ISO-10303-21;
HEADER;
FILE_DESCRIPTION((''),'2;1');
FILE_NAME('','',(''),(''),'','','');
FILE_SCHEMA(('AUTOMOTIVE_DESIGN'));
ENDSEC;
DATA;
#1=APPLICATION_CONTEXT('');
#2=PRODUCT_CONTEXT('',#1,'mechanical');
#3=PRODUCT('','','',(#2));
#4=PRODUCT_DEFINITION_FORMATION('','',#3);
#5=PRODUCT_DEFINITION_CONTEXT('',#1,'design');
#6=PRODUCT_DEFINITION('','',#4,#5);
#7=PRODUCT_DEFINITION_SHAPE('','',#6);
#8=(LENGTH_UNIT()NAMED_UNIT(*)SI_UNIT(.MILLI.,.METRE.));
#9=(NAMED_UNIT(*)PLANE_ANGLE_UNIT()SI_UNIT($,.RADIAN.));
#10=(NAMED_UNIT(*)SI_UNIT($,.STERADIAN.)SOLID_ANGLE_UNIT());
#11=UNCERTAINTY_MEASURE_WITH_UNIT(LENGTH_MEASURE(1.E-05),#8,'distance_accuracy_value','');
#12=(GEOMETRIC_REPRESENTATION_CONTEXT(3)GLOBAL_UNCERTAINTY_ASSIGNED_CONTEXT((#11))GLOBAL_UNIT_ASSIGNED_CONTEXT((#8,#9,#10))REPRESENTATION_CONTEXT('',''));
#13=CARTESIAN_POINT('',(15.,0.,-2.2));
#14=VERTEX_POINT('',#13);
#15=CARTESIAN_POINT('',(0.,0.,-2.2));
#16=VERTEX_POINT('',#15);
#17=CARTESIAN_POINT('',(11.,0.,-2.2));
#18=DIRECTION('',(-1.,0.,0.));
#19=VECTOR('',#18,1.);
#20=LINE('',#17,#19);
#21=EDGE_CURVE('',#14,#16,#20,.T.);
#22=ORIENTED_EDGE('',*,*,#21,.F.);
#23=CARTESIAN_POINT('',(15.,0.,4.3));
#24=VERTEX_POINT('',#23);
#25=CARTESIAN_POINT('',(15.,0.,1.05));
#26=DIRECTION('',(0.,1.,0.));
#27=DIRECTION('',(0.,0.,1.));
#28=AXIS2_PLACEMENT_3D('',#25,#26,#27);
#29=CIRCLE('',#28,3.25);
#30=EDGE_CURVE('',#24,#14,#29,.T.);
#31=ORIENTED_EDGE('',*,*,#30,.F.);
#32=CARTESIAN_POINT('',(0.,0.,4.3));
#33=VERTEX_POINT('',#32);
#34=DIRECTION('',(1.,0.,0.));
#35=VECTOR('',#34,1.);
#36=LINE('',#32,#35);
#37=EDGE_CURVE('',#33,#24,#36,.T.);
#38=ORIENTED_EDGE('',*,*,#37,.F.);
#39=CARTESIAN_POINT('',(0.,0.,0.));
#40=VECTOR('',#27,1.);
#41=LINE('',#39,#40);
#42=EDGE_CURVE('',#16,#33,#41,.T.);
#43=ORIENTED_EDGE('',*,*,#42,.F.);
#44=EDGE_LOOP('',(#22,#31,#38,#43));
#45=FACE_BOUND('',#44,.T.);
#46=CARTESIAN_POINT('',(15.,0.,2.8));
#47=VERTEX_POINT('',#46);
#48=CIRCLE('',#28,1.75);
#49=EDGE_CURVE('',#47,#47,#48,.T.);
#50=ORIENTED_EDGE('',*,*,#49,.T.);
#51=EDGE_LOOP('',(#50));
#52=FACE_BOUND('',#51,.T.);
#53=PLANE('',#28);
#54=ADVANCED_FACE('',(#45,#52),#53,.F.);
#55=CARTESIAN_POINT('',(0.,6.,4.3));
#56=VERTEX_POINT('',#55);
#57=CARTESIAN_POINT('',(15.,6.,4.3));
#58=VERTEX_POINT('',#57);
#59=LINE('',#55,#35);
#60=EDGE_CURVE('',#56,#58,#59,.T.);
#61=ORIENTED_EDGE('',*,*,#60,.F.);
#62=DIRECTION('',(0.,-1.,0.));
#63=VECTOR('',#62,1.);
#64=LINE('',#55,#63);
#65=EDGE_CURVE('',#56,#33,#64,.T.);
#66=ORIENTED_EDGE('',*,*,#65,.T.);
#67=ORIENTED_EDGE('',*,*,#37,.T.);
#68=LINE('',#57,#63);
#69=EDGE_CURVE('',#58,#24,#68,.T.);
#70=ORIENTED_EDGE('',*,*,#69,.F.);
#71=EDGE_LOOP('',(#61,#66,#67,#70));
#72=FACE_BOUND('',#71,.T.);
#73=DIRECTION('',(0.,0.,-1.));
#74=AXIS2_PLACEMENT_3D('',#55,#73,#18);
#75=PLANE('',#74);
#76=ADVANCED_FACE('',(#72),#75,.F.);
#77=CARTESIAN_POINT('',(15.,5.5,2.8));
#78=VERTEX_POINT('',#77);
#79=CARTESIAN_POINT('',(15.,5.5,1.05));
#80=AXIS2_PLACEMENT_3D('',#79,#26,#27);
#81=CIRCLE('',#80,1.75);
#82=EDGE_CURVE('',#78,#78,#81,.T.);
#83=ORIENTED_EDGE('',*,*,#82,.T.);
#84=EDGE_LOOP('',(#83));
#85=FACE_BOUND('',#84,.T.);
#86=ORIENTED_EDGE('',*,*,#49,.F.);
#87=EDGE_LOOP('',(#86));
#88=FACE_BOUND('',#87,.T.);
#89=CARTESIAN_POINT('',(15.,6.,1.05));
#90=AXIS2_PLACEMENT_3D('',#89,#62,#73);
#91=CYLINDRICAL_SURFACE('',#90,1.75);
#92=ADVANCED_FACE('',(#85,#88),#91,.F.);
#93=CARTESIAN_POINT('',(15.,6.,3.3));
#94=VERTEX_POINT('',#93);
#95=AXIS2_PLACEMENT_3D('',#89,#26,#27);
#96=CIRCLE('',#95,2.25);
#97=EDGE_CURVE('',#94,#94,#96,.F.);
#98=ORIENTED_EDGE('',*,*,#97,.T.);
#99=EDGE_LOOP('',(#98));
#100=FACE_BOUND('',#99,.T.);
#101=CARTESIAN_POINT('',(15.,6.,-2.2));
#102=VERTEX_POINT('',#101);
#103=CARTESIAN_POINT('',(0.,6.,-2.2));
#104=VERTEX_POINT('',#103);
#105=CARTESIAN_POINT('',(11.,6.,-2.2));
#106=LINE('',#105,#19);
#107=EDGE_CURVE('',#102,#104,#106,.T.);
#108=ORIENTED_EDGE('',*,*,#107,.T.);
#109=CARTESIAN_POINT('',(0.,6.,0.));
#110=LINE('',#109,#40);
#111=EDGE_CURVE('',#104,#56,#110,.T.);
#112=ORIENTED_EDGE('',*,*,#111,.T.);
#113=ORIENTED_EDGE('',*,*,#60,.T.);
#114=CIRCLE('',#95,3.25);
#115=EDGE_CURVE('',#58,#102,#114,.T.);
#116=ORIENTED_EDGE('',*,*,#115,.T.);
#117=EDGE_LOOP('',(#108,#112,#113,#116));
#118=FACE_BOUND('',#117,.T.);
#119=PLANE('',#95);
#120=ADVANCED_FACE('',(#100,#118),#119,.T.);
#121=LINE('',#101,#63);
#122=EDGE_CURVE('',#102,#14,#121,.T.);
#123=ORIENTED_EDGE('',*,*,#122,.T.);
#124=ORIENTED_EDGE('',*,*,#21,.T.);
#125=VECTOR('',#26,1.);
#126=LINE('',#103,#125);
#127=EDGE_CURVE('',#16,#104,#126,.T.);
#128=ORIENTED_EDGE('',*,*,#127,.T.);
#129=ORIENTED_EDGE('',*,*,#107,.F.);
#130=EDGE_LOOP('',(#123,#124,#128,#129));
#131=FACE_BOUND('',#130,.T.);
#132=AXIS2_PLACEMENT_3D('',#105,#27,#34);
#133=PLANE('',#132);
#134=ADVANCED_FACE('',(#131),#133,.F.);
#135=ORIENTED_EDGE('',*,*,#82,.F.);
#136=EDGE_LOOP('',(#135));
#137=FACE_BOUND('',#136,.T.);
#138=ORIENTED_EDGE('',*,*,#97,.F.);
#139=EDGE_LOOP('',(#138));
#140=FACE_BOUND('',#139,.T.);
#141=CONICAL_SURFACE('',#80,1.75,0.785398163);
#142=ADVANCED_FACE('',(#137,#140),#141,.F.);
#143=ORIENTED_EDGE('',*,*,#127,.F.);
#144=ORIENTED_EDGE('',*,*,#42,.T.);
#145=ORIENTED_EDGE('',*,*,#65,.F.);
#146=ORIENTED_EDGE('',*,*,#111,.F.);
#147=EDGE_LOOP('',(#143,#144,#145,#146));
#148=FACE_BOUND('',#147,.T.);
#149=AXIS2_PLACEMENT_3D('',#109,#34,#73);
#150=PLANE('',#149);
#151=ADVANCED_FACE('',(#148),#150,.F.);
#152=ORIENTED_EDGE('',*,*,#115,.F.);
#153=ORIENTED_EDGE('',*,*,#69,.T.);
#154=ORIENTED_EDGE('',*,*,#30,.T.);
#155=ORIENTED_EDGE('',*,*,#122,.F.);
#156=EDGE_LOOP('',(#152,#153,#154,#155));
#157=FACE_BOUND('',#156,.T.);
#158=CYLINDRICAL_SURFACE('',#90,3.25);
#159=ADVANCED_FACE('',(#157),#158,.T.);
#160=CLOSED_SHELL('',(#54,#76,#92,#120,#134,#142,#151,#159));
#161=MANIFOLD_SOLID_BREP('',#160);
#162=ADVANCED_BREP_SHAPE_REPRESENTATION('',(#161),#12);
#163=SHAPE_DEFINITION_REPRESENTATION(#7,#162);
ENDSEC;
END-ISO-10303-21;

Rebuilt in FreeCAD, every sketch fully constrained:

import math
import FreeCAD as App
import Part
import Sketcher
Q = App.Units.Quantity


def edges_at(feature, points):
    """Names of the edges that pass closest to the given points."""
    edges = feature.Shape.Edges
    near = lambda p: min(range(len(edges)), key=lambda i: edges[i].distToShape(Part.Vertex(*p))[0])
    return sorted({f"Edge{near(p) + 1}" for p in points})

doc = App.newDocument("Part")
body = doc.addObject("PartDesign::Body", "Body")

sketch1 = doc.addObject("Sketcher::SketchObject", "Sketch")
body.addObject(sketch1)
sketch1.AttachmentSupport = (doc.XZ_Plane, [""])
sketch1.MapMode = "FlatFace"
sketch1.addGeometry([
    Part.LineSegment(App.Vector(15, -2.2, 0), App.Vector(11, -2.2, 0)),
    Part.LineSegment(App.Vector(11, -2.2, 0), App.Vector(11, 0, 0)),
    Part.LineSegment(App.Vector(11, 0, 0), App.Vector(0, 0, 0)),
    Part.LineSegment(App.Vector(0, 0, 0), App.Vector(0, 4.3, 0)),
    Part.LineSegment(App.Vector(0, 4.3, 0), App.Vector(15, 4.3, 0)),
    Part.ArcOfCircle(Part.Circle(App.Vector(15, 1.1, 0), App.Vector(0, 0, 1), 3.2), math.radians(-90), math.radians(90)),
    Part.Circle(App.Vector(15, 1.1, 0), App.Vector(0, 0, 1), 1.8),
], False)
sketch1.addConstraint([
    Sketcher.Constraint("Coincident", 0, 2, 1, 1),
    Sketcher.Constraint("Coincident", 1, 2, 2, 1),
    Sketcher.Constraint("Coincident", 2, 2, 3, 1),
    Sketcher.Constraint("Coincident", 3, 2, 4, 1),
    Sketcher.Constraint("Tangent", 4, 2, 5, 2),
    Sketcher.Constraint("Tangent", 5, 1, 0, 1),
    Sketcher.Constraint("Horizontal", 0),
    Sketcher.Constraint("Vertical", 1),
    Sketcher.Constraint("Horizontal", 2),
    Sketcher.Constraint("Vertical", 3),
    Sketcher.Constraint("Horizontal", 4),
    Sketcher.Constraint("Coincident", 2, 2, -1, 1),
    Sketcher.Constraint("Coincident", 6, 3, 5, 3),
    Sketcher.Constraint("Diameter", 6, Q("3.5 mm")),
    Sketcher.Constraint("DistanceX", 0, 2, 0, 1, Q("4 mm")),
    Sketcher.Constraint("DistanceX", 2, 2, 2, 1, Q("11 mm")),
    Sketcher.Constraint("Radius", 5, Q("3.25 mm")),
    Sketcher.Constraint("DistanceY", 1, 1, 1, 2, Q("2.2 mm")),
])
pad1 = doc.addObject("PartDesign::Pad", "Pad")
body.addObject(pad1)
pad1.Profile = sketch1
pad1.Length = 6
pad1.Reversed = True
doc.recompute()

chamfer = doc.addObject("PartDesign::Chamfer", "Chamfer")
body.addObject(chamfer)
chamfer.Base = (pad1, edges_at(pad1, [(15, 6, -0.7)]))
chamfer.Size = 0.5

sketch2 = doc.addObject("Sketcher::SketchObject", "Sketch001")
body.addObject(sketch2)
sketch2.AttachmentSupport = (doc.XY_Plane, [""])
sketch2.MapMode = "FlatFace"
sketch2.addGeometry([
    Part.LineSegment(App.Vector(11, 6, 0), App.Vector(11, 0, 0)),
    Part.LineSegment(App.Vector(11, 0, 0), App.Vector(0, 0, 0)),
    Part.LineSegment(App.Vector(0, 0, 0), App.Vector(0, 6, 0)),
    Part.LineSegment(App.Vector(0, 6, 0), App.Vector(11, 6, 0)),
], False)
sketch2.addConstraint([
    Sketcher.Constraint("Coincident", 0, 2, 1, 1),
    Sketcher.Constraint("Coincident", 1, 2, 2, 1),
    Sketcher.Constraint("Coincident", 2, 2, 3, 1),
    Sketcher.Constraint("Coincident", 3, 2, 0, 1),
    Sketcher.Constraint("Vertical", 0),
    Sketcher.Constraint("Horizontal", 1),
    Sketcher.Constraint("Vertical", 2),
    Sketcher.Constraint("Horizontal", 3),
    Sketcher.Constraint("Coincident", 1, 2, -1, 1),
    Sketcher.Constraint("DistanceX", 1, 2, 1, 1, Q("11 mm")),
    Sketcher.Constraint("DistanceY", 0, 2, 0, 1, Q("6 mm")),
])
pad2 = doc.addObject("PartDesign::Pad", "Pad001")
body.addObject(pad2)
pad2.Profile = sketch2
pad2.Length = 2.2
pad2.Reversed = True

doc.recompute()
